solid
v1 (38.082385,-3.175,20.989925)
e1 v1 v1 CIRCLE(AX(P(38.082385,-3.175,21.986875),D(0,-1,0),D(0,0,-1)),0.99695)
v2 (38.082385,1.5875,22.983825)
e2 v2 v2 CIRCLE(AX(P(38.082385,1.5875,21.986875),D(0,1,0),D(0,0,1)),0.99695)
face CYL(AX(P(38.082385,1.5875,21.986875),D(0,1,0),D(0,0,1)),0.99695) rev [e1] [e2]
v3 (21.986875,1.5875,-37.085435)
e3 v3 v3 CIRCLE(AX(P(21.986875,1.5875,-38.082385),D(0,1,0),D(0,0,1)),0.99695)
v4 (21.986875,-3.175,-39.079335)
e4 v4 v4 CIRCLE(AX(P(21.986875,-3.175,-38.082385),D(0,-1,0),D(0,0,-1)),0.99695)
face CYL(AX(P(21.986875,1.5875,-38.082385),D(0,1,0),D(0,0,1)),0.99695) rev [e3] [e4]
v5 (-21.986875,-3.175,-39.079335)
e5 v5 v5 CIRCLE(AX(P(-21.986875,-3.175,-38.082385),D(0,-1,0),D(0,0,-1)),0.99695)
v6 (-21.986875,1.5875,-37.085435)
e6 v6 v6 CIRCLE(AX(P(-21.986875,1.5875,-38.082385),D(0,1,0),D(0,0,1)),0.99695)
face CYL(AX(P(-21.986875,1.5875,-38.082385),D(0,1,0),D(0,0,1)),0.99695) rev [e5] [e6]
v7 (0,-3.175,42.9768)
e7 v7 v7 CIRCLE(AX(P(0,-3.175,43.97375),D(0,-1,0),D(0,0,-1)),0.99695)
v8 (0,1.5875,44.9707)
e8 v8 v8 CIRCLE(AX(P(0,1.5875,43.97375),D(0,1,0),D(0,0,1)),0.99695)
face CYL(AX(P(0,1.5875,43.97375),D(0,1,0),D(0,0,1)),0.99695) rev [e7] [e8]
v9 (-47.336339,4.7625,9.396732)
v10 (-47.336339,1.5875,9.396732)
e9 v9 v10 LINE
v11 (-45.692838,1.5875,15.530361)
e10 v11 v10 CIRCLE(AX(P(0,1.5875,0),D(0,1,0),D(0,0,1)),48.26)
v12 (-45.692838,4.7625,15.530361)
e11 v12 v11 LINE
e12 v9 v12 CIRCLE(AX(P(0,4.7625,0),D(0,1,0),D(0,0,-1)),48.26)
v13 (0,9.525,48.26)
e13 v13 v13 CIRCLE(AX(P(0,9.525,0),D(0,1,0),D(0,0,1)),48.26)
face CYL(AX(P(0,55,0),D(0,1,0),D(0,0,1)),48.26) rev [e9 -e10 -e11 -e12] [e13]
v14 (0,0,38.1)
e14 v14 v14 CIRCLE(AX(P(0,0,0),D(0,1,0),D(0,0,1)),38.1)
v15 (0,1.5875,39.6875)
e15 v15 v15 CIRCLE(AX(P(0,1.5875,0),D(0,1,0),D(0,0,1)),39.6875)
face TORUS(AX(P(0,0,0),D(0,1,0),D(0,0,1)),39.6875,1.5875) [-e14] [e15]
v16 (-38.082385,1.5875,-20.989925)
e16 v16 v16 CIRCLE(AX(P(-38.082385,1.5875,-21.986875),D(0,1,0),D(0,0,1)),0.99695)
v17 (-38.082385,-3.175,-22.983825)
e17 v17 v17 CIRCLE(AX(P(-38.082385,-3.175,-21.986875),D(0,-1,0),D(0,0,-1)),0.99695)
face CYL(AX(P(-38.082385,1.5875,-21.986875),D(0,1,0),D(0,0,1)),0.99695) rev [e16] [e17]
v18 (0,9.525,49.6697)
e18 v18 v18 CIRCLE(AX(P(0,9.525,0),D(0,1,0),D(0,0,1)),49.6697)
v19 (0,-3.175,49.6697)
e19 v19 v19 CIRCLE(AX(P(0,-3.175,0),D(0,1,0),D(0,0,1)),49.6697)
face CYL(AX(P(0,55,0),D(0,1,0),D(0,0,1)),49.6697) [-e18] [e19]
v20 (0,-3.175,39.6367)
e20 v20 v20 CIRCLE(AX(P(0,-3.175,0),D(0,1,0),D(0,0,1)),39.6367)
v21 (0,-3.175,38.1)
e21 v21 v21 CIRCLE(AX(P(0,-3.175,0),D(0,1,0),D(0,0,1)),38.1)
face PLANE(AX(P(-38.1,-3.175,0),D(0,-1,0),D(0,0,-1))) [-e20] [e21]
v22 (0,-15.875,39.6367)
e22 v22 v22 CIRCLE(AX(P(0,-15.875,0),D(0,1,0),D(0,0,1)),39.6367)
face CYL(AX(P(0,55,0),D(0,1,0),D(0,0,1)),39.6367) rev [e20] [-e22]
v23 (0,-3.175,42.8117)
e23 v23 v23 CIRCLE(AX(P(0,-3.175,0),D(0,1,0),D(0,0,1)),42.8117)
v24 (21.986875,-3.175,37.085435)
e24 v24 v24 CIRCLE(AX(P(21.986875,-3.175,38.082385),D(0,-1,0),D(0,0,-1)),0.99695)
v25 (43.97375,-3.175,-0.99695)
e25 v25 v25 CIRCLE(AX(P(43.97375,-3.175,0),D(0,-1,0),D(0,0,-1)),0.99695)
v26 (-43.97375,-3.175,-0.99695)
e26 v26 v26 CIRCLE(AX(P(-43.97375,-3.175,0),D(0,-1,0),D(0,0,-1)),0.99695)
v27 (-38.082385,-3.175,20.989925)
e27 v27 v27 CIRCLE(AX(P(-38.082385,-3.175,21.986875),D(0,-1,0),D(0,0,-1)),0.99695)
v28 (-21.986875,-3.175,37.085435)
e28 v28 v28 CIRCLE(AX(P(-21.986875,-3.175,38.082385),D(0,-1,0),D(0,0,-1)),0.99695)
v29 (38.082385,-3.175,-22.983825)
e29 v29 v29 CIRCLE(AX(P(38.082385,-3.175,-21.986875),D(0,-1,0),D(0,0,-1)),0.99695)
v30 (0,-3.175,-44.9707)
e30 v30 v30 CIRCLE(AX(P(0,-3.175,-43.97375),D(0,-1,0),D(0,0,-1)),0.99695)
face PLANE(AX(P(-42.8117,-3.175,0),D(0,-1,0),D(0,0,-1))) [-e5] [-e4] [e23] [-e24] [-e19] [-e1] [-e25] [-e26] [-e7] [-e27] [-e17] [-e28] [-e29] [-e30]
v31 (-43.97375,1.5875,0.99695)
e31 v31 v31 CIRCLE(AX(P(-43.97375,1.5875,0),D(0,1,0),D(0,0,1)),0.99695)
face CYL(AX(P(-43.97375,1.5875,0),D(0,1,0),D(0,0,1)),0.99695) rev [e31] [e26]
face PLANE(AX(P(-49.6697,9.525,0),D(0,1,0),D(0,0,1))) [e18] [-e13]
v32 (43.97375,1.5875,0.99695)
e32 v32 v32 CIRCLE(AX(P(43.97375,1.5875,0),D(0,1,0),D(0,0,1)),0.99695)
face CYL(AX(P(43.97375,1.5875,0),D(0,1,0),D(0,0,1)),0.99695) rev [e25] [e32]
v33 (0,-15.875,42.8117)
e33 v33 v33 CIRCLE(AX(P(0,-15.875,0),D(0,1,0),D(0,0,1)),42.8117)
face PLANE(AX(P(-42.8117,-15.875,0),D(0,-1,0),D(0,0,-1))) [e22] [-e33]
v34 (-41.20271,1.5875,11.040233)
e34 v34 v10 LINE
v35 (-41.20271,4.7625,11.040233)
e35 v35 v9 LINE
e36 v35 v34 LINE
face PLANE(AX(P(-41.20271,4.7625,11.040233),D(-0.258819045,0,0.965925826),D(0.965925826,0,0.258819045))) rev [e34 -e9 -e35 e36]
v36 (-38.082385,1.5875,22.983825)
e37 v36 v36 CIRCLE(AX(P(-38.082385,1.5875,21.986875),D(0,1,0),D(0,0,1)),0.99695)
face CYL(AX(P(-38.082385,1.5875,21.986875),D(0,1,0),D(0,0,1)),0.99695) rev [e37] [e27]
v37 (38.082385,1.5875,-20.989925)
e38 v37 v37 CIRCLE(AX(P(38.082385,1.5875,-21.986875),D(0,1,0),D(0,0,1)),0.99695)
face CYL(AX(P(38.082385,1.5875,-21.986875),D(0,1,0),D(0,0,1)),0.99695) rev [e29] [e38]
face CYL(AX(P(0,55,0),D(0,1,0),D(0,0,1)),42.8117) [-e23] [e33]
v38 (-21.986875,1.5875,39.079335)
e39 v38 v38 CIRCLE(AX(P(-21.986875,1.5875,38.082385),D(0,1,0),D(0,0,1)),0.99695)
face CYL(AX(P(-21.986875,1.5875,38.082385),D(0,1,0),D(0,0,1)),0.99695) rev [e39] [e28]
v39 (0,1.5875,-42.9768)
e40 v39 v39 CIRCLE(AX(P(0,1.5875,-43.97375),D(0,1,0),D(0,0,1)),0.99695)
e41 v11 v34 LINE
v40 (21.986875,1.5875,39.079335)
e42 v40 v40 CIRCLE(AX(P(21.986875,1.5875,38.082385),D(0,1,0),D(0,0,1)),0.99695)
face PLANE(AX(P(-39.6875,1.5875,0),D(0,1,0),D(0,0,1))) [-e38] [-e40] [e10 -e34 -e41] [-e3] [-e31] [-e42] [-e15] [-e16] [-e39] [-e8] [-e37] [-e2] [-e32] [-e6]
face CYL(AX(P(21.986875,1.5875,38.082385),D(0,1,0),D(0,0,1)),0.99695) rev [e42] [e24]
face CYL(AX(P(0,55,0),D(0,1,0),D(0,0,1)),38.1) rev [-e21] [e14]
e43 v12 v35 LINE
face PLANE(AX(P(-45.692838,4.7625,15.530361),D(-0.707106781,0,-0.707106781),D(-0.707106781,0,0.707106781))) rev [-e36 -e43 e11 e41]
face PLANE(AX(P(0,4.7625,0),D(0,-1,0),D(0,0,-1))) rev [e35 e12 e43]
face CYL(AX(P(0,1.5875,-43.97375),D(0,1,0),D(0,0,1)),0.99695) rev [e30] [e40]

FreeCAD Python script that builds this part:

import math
import FreeCAD as App
import Part
import Sketcher
from FreeCAD import Vector
Q = App.Units.Quantity

doc = App.newDocument("Part")
body = doc.addObject("PartDesign::Body", "Body")

# Sketch on XY plane
sketch1 = body.newObject("Sketcher::SketchObject", "Sketch")
sketch1.AttachmentSupport = (doc.getObject("XY_Plane"), [""])
sketch1.MapMode = "FlatFace"
sketch1.addGeometry([
    Part.LineSegment(Vector(-38.1, -3.2, 0), Vector(-38.1, 0, 0)),  # 0
    Part.ArcOfCircle(Part.Circle(Vector(-39.7, 0, 0), Vector(0, 0, 1), 1.6), math.radians(0), math.radians(90)),  # 1
    Part.LineSegment(Vector(-39.7, 1.6, 0), Vector(-48.3, 1.6, 0)),  # 2
    Part.LineSegment(Vector(-48.3, 1.6, 0), Vector(-48.3, 9.5, 0)),  # 3
    Part.LineSegment(Vector(-48.3, 9.5, 0), Vector(-49.7, 9.5, 0)),  # 4
    Part.LineSegment(Vector(-49.7, 9.5, 0), Vector(-49.7, -3.2, 0)),  # 5
    Part.LineSegment(Vector(-49.7, -3.2, 0), Vector(-42.8, -3.2, 0)),  # 6
    Part.LineSegment(Vector(-42.8, -3.2, 0), Vector(-42.8, -15.9, 0)),  # 7
    Part.LineSegment(Vector(-42.8, -15.9, 0), Vector(-39.6, -15.9, 0)),  # 8
    Part.LineSegment(Vector(-39.6, -15.9, 0), Vector(-39.6, -3.2, 0)),  # 9
    Part.LineSegment(Vector(-39.6, -3.2, 0), Vector(-38.1, -3.2, 0)),  # 10
], False)
sketch1.addConstraint([
    Sketcher.Constraint("Tangent", 0, 2, 1, 1),
    Sketcher.Constraint("Tangent", 1, 2, 2, 1),
    Sketcher.Constraint("Coincident", 2, 2, 3, 1),
    Sketcher.Constraint("Coincident", 3, 2, 4, 1),
    Sketcher.Constraint("Coincident", 4, 2, 5, 1),
    Sketcher.Constraint("Coincident", 5, 2, 6, 1),
    Sketcher.Constraint("Coincident", 6, 2, 7, 1),
    Sketcher.Constraint("Coincident", 7, 2, 8, 1),
    Sketcher.Constraint("Coincident", 8, 2, 9, 1),
    Sketcher.Constraint("Coincident", 9, 2, 10, 1),
    Sketcher.Constraint("Coincident", 10, 2, 0, 1),
    Sketcher.Constraint("Vertical", 0),
    Sketcher.Constraint("Horizontal", 2),
    Sketcher.Constraint("Vertical", 3),
    Sketcher.Constraint("Horizontal", 4),
    Sketcher.Constraint("Vertical", 5),
    Sketcher.Constraint("Horizontal", 6),
    Sketcher.Constraint("Vertical", 7),
    Sketcher.Constraint("Horizontal", 8),
    Sketcher.Constraint("Vertical", 9),
    Sketcher.Constraint("Horizontal", 10),
    Sketcher.Constraint("PointOnObject", 1, 3, -1),
    Sketcher.Constraint("Horizontal", 6, 2, 9, 2),
    Sketcher.Constraint("Equal", 8, 0),
    Sketcher.Constraint("Equal", 5, 7),
    Sketcher.Constraint("DistanceY", 5, 2, 5, 1, Q("0.5 in")),
    Sketcher.Constraint("Radius", 1, Q("0.0625 in")),
    Sketcher.Constraint("DistanceX", 6, 1, 6, 2, Q("0.27 in")),
    Sketcher.Constraint("DistanceX", 0, 2, -1, 1, Q("1.5 in")),
    Sketcher.Constraint("DistanceX", 2, 2, -1, 1, Q("1.9 in")),
    Sketcher.Constraint("DistanceX", 8, 1, 8, 2, Q("0.125 in")),
    Sketcher.Constraint("DistanceX", 4, 2, 4, 1, Q("0.0555 in")),
])
revolution = body.newObject("PartDesign::Revolution", "Revolution")
revolution.Profile = sketch1
revolution.ReferenceAxis = (sketch1, ["V_Axis"])
revolution.Angle = 360

# Sketch on XZ plane
sketch2 = body.newObject("Sketcher::SketchObject", "Sketch001")
sketch2.AttachmentSupport = (doc.getObject("XZ_Plane"), [""])
sketch2.MapMode = "FlatFace"
sketch2.AttachmentOffset = App.Placement(Vector(0, 0, -0.0625 * 25.4), App.Rotation())
sketch2.addGeometry(Part.Circle(Vector(-44, 0, 0), Vector(0, 0, 1), 1), False)
sketch2.addConstraint([
    Sketcher.Constraint("PointOnObject", 0, 3, -1),
    Sketcher.Constraint("Diameter", 0, Q("0.0785 in")),
    Sketcher.Constraint("DistanceX", 0, 3, -1, 1, 43.97375),
])
doc.recompute()
hole = body.newObject("PartDesign::Hole", "Hole")
hole.Profile = sketch2
hole.ThreadType = "None"
hole.Diameter = Q("0.0785 in")
hole.DepthType = "ThroughAll"
hole.Reversed = True
doc.recompute()

polarpattern = body.newObject("PartDesign::PolarPattern", "PolarPattern")
polarpattern.Originals = [hole]
polarpattern.Axis = (doc.getObject("Y_Axis"), [""])
polarpattern.Angle = 360
polarpattern.Occurrences = 12
body.Tip = polarpattern

# Sketch on XZ plane
sketch3 = body.newObject("Sketcher::SketchObject", "Sketch002")
sketch3.AttachmentSupport = (doc.getObject("XZ_Plane"), [""])
sketch3.MapMode = "FlatFace"
sketch3.AttachmentOffset = App.Placement(Vector(0, 0, -0.0625 * 25.4), App.Rotation())
sketch3.addGeometry([
    Part.LineSegment(Vector(-46, 16, 0), Vector(-41, 11, 0)),
    Part.LineSegment(Vector(-41, 11, 0), Vector(-47, 9, 0)),
    Part.ArcOfCircle(Part.Circle(Vector(0, 0, 0), Vector(0, 0, 1), 48), math.radians(161.23), math.radians(168.77)),
], False)
sketch3.addConstraint([
    Sketcher.Constraint("Coincident", 0, 2, 1, 1),
    Sketcher.Constraint("Coincident", 1, 2, 2, 2),
    Sketcher.Constraint("Coincident", 2, 1, 0, 1),
    Sketcher.Constraint("Coincident", 2, 3, -1, 1),
    Sketcher.Constraint("Equal", 0, 1),
    Sketcher.Constraint("Radius", 2, Q("1.9 in")),
    Sketcher.Constraint("Angle", 0, Q("-45 deg")),
    Sketcher.Constraint("Angle", 1, Q("-165 deg")),
    Sketcher.Constraint("Distance", 0, Q("0.25 in")),
])
pad1 = body.newObject("PartDesign::Pad", "Pad")
pad1.Profile = sketch3
pad1.Length = Q("0.125 in")
pad1.Reversed = True

doc.recompute()
